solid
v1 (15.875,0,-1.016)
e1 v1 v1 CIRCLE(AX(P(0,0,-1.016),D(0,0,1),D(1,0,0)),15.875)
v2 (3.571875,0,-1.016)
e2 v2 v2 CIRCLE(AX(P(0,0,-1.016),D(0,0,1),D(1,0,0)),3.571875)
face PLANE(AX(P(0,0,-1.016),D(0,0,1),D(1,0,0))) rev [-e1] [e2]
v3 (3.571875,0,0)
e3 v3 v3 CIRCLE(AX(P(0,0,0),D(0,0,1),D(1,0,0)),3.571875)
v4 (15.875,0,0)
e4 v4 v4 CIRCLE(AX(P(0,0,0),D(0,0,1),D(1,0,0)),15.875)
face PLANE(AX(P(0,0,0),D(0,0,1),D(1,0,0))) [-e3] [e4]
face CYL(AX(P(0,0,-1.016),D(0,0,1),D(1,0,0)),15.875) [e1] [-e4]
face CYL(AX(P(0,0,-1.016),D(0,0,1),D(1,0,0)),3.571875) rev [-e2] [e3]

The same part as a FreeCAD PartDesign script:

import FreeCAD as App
import Part
import Sketcher
from FreeCAD import Vector
Q = App.Units.Quantity

doc = App.newDocument("Part")
body = doc.addObject("PartDesign::Body", "Body")

sketch1 = body.newObject("Sketcher::SketchObject", "Sketch")
sketch1.AttachmentSupport = (doc.getObject("XY_Plane"), [""])
sketch1.MapMode = "FlatFace"
sketch1.addGeometry([
    Part.Circle(Vector(0, 0, 0), Vector(0, 0, 1), 15.9),
    Part.Circle(Vector(0, 0, 0), Vector(0, 0, 1), 3.6),
], False)
sketch1.addConstraint([
    Sketcher.Constraint("Coincident", 0, 3, -1, 1),
    Sketcher.Constraint("Coincident", 1, 3, -1, 1),
    Sketcher.Constraint("Diameter", 0, Q("1.25 in")),
    Sketcher.Constraint("Diameter", 1, Q("0.28125 in")),
])
pad1 = body.newObject("PartDesign::Pad", "Pad")
pad1.Profile = sketch1
pad1.Length = Q("0.04 in")
pad1.Reversed = True

doc.recompute()
